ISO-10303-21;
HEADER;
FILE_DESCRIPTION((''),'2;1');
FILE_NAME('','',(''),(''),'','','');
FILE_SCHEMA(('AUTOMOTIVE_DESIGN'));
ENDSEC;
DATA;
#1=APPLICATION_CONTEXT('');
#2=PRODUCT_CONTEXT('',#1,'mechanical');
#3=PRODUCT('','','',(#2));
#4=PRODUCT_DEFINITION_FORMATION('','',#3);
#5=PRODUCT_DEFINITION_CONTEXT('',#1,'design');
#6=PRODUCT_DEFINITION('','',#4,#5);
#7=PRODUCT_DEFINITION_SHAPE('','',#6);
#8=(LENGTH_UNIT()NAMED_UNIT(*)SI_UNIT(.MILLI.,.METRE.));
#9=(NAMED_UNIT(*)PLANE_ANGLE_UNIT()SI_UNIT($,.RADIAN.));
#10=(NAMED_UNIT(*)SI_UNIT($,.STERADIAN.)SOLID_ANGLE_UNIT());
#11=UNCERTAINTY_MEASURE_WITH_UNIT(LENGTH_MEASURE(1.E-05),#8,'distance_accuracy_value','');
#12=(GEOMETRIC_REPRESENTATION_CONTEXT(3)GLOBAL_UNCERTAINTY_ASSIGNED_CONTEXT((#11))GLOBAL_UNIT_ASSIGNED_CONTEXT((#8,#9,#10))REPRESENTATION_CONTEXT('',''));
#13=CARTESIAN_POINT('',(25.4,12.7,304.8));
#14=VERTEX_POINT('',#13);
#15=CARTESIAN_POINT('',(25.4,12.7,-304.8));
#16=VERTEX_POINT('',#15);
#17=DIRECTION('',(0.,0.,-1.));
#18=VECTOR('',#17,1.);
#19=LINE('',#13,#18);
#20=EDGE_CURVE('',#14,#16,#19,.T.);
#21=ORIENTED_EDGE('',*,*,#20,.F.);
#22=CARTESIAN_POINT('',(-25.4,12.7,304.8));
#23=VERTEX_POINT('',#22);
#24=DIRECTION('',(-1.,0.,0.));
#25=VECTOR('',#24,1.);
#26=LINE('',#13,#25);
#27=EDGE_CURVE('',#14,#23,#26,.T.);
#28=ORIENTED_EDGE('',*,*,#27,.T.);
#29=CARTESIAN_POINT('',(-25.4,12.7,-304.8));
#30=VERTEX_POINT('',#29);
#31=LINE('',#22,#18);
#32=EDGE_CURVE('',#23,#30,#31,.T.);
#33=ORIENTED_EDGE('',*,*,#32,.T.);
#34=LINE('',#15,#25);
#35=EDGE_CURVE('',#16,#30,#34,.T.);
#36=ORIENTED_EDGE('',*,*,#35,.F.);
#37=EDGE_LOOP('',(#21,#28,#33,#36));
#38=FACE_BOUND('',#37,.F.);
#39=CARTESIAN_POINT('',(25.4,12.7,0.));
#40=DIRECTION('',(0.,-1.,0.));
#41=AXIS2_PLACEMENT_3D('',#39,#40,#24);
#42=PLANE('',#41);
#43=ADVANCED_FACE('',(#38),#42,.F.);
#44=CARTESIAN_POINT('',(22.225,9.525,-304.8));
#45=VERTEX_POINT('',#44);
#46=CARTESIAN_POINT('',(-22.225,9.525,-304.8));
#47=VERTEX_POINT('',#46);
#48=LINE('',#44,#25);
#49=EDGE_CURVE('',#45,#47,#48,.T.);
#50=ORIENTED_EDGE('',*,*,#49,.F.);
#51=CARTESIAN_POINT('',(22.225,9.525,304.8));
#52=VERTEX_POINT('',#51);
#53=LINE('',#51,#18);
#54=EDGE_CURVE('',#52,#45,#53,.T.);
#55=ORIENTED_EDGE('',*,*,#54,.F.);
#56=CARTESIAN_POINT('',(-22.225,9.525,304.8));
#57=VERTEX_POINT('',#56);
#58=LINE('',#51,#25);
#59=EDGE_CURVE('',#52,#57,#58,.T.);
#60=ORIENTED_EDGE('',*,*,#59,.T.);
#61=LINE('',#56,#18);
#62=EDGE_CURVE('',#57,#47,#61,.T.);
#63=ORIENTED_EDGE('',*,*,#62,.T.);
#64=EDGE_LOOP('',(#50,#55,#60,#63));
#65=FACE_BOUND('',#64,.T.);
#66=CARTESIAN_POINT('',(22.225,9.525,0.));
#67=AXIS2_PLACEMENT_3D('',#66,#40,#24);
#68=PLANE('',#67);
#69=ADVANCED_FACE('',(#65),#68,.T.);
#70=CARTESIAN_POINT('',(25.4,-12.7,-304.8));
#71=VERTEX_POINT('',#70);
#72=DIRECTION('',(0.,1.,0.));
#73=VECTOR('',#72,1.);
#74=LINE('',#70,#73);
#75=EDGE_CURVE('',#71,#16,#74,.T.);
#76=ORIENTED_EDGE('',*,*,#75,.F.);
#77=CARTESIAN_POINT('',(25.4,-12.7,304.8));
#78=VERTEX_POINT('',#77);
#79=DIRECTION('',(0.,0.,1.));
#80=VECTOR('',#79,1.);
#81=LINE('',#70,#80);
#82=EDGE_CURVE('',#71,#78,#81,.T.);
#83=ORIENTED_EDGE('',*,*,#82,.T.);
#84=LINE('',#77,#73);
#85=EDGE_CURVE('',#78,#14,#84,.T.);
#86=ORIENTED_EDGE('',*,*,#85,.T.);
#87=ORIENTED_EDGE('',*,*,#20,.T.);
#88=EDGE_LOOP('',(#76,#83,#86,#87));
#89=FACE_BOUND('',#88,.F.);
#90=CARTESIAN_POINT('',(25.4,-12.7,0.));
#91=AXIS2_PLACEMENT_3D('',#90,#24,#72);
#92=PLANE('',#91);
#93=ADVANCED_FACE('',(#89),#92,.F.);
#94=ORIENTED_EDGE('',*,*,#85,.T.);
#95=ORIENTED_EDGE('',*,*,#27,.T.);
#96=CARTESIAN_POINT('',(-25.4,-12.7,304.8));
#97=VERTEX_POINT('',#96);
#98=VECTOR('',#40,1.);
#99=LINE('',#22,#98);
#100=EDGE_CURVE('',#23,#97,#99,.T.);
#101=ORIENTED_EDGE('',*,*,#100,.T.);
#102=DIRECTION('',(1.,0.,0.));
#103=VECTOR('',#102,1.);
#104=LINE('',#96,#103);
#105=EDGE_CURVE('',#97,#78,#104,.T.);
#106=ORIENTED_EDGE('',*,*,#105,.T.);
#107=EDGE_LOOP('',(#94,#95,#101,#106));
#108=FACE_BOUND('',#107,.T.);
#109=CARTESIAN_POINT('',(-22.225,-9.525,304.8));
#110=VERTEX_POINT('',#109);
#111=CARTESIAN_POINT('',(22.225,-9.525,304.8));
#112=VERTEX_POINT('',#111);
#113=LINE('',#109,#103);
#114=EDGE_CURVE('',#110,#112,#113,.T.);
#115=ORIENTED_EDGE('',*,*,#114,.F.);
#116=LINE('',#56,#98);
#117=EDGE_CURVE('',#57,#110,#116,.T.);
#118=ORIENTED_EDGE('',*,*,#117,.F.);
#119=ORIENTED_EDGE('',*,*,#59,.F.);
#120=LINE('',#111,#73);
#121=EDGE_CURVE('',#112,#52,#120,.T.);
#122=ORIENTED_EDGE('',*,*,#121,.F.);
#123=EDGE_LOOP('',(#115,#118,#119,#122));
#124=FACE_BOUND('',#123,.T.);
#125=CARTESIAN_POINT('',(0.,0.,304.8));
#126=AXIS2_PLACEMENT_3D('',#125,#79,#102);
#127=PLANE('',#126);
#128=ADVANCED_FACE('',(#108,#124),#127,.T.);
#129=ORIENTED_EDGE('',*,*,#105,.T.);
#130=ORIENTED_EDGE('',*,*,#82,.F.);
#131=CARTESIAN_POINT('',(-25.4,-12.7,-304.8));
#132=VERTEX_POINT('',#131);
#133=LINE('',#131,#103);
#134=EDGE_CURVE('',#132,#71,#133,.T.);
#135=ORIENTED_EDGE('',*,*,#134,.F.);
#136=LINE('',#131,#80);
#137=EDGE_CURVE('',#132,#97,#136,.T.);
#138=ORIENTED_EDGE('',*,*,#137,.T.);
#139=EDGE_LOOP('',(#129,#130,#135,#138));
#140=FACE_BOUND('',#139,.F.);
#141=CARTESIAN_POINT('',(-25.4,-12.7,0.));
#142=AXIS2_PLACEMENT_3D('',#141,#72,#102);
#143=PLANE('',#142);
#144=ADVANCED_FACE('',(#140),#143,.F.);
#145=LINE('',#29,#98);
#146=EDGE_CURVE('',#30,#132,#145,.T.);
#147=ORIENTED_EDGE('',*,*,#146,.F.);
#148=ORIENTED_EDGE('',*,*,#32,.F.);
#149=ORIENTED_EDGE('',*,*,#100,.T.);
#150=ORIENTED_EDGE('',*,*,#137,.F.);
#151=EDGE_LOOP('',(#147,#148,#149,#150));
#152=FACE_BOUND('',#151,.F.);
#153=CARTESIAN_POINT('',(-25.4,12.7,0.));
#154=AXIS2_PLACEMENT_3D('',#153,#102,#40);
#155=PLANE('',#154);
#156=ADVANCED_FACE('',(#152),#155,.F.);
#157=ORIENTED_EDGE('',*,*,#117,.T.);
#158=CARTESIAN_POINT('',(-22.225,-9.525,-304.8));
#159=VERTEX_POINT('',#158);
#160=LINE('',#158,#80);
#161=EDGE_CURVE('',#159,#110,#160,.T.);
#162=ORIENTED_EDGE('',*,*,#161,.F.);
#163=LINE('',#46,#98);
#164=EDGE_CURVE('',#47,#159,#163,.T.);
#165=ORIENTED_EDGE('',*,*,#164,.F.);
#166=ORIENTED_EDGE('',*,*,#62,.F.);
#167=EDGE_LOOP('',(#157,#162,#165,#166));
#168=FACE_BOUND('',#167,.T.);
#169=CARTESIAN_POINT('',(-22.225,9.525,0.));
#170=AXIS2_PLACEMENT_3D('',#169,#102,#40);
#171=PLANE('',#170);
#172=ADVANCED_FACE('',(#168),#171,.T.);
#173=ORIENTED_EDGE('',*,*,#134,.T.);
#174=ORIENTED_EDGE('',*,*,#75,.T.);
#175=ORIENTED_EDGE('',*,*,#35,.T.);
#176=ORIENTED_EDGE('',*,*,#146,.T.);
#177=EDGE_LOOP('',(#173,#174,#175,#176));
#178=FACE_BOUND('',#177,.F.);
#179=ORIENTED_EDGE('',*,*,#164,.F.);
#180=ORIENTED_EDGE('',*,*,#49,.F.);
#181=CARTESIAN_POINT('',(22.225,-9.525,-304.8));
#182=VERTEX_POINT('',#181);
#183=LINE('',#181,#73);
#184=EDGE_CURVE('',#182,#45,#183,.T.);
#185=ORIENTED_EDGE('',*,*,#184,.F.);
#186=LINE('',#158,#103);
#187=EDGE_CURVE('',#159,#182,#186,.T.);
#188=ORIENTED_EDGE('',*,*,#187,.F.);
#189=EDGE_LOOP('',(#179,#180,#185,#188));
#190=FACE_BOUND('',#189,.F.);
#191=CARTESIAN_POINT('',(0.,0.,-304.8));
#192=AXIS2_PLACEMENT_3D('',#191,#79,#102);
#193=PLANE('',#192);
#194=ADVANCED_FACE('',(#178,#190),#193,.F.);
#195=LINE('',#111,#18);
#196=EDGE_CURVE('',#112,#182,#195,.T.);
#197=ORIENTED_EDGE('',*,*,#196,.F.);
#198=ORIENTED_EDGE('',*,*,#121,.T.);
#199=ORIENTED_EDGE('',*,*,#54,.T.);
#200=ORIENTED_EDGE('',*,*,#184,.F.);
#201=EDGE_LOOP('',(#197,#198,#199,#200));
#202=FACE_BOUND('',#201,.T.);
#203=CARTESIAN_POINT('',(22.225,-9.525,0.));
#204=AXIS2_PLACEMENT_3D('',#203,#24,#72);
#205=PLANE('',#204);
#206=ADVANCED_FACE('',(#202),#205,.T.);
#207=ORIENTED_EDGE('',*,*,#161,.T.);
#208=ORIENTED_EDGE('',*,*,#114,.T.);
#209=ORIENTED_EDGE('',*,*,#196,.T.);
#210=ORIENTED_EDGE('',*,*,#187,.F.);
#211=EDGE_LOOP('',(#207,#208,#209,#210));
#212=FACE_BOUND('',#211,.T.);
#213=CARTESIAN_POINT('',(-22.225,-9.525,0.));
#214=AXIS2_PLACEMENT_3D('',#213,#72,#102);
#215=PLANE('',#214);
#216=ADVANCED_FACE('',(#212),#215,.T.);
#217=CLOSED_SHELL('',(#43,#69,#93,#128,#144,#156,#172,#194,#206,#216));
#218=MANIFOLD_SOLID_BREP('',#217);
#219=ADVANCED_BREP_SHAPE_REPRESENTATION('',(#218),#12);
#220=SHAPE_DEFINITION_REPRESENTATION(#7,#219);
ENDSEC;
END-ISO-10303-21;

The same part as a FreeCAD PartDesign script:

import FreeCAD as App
import Part
import Sketcher
Q = App.Units.Quantity


def add_polygon(sketch, points):
    """Adds a closed chain of lines whose ends are joined by coincident constraints."""
    first, n = sketch.GeometryCount, len(points)
    for a, b in zip(points, points[1:] + points[:1]):
        sketch.addGeometry(Part.LineSegment(App.Vector(*a, 0), App.Vector(*b, 0)), False)
    for i in range(n):
        sketch.addConstraint(Sketcher.Constraint("Coincident", first + i, 2, first + (i + 1) % n, 1))

doc = App.newDocument("Part")
body = doc.addObject("PartDesign::Body", "Body")

# Sketch on XY plane
sketch1 = body.newObject("Sketcher::SketchObject", "Sketch")
sketch1.AttachmentSupport = (doc.getObject("XY_Plane"), [""])
sketch1.MapMode = "FlatFace"
add_polygon(sketch1, [(-25.4, 12.7), (-25.4, -12.7), (25.4, -12.7), (25.4, 12.7)])  # lines 0-3
add_polygon(sketch1, [(22.225, -9.525), (-22.225, -9.525), (-22.225, 9.525), (22.225, 9.525)])  # lines 4-7
sketch1.addConstraint(Sketcher.Constraint("Vertical", 0))
sketch1.addConstraint(Sketcher.Constraint("Horizontal", 1))
sketch1.addConstraint(Sketcher.Constraint("Vertical", 2))
sketch1.addConstraint(Sketcher.Constraint("Horizontal", 3))
sketch1.addConstraint(Sketcher.Constraint("Horizontal", 4))
sketch1.addConstraint(Sketcher.Constraint("Vertical", 5))
sketch1.addConstraint(Sketcher.Constraint("Horizontal", 6))
sketch1.addConstraint(Sketcher.Constraint("Vertical", 7))
sketch1.addConstraint(Sketcher.Constraint("Symmetric", 0, 2, 2, 2, -1, 1))
sketch1.addConstraint(Sketcher.Constraint("Symmetric", 4, 2, 6, 2, -1, 1))
sketch1.addConstraint(Sketcher.Constraint("DistanceX", 1, 1, 1, 2, Q("2 in")))
sketch1.addConstraint(Sketcher.Constraint("DistanceY", 0, 2, 0, 1, Q("1 in")))
sketch1.addConstraint(Sketcher.Constraint("DistanceX", 0, 2, 4, 2, Q("0.125 in")))
sketch1.addConstraint(Sketcher.Constraint("DistanceY", 0, 2, 4, 2, Q("0.125 in")))
pad1 = body.newObject("PartDesign::Pad", "Pad")
pad1.Profile = sketch1
pad1.Length = Q("24 in")
pad1.Midplane = True

doc.recompute()
